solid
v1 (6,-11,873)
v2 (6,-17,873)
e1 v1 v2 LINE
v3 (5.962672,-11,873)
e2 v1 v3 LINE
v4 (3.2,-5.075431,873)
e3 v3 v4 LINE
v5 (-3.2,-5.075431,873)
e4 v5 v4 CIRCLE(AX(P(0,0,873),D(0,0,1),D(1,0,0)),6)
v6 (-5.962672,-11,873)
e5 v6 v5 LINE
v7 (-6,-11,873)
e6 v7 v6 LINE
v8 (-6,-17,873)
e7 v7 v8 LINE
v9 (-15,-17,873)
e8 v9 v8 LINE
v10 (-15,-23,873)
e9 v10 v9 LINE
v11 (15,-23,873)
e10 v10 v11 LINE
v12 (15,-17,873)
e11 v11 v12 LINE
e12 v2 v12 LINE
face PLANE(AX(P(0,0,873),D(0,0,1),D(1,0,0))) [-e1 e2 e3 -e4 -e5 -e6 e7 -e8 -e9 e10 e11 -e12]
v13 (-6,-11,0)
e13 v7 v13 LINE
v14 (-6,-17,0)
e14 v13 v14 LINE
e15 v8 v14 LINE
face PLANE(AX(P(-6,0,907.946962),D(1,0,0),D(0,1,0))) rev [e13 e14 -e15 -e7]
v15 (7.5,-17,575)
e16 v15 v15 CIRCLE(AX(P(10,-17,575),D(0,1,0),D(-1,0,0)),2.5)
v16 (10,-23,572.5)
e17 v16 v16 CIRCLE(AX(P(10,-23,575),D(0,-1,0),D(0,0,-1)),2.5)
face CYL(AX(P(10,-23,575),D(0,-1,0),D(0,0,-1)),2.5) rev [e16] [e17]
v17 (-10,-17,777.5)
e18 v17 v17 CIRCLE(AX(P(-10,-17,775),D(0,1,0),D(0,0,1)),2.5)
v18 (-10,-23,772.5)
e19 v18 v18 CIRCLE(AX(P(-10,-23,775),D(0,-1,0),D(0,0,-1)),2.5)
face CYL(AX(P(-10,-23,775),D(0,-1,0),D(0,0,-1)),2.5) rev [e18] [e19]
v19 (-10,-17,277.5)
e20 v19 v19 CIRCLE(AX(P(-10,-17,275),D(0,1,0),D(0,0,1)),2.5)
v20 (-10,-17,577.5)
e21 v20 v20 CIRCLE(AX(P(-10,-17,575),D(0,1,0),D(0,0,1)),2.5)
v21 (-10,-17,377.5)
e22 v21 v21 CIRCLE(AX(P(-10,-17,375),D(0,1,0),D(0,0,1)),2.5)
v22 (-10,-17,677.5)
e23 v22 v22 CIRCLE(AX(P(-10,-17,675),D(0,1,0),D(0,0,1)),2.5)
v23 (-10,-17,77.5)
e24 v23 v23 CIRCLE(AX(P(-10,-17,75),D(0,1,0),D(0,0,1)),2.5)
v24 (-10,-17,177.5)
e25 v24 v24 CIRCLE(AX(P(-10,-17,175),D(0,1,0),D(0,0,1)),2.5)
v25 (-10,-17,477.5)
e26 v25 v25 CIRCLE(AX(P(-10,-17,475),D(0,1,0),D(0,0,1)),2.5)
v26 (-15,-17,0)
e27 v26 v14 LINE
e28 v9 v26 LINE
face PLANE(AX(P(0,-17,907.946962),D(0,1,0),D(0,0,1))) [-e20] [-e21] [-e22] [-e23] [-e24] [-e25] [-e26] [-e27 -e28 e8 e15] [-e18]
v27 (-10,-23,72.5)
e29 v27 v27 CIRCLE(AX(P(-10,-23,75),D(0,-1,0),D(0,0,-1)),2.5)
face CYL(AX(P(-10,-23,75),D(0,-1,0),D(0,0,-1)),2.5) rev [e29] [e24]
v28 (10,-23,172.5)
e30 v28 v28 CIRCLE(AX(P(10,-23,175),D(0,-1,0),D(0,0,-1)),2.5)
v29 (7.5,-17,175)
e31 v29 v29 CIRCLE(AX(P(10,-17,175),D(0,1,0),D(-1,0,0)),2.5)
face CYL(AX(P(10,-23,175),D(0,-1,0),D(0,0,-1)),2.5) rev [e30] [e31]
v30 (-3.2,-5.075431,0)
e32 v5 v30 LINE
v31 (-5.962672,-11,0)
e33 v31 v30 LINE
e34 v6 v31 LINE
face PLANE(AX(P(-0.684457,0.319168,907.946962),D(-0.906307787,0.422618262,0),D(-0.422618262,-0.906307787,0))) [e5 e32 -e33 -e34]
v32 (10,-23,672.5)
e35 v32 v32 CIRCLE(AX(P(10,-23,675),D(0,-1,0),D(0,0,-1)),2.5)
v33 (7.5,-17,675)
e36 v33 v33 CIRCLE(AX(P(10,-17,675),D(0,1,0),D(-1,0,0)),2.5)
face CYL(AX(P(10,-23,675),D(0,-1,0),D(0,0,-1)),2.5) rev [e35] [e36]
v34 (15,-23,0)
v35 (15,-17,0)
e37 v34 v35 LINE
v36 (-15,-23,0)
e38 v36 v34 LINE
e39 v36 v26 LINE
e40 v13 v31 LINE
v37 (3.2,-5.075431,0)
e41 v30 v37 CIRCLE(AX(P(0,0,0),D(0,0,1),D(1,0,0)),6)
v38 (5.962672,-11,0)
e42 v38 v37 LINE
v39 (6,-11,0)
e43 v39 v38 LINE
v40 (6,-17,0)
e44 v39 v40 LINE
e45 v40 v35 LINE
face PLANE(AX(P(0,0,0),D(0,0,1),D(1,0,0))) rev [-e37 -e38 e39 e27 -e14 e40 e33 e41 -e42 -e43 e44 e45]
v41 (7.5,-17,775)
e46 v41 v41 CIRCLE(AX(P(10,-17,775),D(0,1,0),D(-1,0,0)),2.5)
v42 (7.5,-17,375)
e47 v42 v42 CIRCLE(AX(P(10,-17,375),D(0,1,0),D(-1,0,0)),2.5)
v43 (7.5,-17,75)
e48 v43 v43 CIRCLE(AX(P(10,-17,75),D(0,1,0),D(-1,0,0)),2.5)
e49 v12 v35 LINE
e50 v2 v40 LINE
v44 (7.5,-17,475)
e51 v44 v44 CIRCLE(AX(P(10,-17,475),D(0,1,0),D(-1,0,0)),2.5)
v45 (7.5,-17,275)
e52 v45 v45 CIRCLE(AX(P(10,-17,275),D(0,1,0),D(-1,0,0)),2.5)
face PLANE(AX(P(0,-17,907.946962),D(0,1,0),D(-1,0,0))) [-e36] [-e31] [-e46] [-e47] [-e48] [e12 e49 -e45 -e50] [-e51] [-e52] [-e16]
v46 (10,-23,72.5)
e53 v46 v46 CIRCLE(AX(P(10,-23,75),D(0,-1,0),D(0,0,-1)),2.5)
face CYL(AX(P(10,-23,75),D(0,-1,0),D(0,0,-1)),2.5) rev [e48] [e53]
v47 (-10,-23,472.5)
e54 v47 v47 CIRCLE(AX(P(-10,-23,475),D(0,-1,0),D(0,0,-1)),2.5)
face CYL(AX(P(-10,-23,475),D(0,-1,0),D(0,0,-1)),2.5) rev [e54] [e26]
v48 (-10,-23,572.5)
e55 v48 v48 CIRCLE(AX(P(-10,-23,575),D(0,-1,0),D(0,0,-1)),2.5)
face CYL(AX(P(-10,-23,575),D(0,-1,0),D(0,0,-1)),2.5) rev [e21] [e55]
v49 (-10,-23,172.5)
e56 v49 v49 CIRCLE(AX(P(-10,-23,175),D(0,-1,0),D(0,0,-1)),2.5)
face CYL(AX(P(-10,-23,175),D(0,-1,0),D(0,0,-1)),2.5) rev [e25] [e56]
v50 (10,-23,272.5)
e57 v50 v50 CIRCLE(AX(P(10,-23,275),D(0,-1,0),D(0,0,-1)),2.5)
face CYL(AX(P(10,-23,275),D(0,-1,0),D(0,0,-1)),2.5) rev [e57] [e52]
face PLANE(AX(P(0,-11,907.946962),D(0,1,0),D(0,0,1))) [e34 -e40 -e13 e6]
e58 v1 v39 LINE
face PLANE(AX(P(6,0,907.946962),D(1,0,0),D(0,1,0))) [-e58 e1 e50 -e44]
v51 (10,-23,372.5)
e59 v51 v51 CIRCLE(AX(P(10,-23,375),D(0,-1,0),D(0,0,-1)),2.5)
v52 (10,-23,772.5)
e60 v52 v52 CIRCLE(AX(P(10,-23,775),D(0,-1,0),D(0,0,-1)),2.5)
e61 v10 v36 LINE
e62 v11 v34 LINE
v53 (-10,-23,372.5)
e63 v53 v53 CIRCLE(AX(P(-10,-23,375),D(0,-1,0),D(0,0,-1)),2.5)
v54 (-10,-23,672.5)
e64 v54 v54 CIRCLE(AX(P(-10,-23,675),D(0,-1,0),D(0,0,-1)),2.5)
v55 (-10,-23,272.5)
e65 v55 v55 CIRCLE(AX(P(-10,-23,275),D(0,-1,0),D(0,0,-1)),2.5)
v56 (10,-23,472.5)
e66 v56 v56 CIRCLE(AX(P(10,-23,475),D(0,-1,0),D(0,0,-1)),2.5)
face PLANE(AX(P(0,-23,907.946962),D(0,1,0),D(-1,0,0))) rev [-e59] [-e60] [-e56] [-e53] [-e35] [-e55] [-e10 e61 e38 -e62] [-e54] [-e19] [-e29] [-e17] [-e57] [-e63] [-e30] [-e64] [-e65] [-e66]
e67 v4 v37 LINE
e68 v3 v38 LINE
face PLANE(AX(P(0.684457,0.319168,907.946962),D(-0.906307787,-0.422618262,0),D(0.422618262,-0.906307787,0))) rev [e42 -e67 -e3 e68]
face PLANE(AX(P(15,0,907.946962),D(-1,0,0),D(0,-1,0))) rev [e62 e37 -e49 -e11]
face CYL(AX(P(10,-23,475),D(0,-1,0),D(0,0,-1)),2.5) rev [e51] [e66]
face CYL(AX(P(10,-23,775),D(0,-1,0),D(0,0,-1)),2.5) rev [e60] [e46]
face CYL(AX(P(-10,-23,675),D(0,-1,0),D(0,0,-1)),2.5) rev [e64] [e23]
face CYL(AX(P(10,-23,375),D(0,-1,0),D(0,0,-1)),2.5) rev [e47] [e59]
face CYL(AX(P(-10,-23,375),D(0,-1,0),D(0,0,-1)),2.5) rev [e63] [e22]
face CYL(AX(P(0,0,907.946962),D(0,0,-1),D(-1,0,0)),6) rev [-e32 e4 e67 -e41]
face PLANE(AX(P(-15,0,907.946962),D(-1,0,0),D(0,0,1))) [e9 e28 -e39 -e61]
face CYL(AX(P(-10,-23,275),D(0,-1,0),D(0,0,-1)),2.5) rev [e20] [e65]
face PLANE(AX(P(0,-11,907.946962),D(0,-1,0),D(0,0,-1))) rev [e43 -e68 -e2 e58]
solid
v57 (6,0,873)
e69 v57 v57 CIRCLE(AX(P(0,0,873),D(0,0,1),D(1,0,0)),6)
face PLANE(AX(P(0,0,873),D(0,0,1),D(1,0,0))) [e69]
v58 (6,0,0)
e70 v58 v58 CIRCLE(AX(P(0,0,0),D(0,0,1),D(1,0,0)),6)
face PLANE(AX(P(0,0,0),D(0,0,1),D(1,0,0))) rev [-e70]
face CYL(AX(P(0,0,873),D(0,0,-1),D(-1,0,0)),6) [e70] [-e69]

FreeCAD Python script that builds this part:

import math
import FreeCAD as App
import Part
import Sketcher
from FreeCAD import Vector
Q = App.Units.Quantity

doc = App.newDocument("Part")
body = doc.addObject("PartDesign::Body", "Body")

sketch1 = doc.addObject("Sketcher::SketchObject", "Sketch")
body.addObject(sketch1)
sketch1.AttachmentSupport = (doc.XY_Plane, [""])
sketch1.MapMode = "FlatFace"
sketch1.addGeometry(Part.Circle(Vector(0, 0, 0), Vector(0, 0, 1), 6), False)
sketch1.addConstraint([
    Sketcher.Constraint("Coincident", 0, 3, -1, 1),
    Sketcher.Constraint("Diameter", 0, 12.0),
])
pad1 = doc.addObject("PartDesign::Pad", "Pad")
body.addObject(pad1)
pad1.Profile = sketch1
pad1.Length = 873
body2 = doc.addObject("PartDesign::Body", "Body001")

sketch2 = doc.addObject("Sketcher::SketchObject", "Sketch001")
body2.addObject(sketch2)
sketch2.AttachmentSupport = (doc.getObject("XY_Plane001"), [""])
sketch2.MapMode = "FlatFace"
sketch2.addGeometry([
    Part.LineSegment(Vector(-15, -17, 0), Vector(-15, -23, 0)),
    Part.LineSegment(Vector(-15, -23, 0), Vector(15, -23, 0)),
    Part.LineSegment(Vector(15, -23, 0), Vector(15, -17, 0)),
    Part.LineSegment(Vector(15, -17, 0), Vector(6, -17, 0)),
    Part.LineSegment(Vector(6, -17, 0), Vector(6, -11, 0)),
    Part.LineSegment(Vector(6, -11, 0), Vector(5.963, -11, 0)),
    Part.LineSegment(Vector(5.963, -11, 0), Vector(3.2, -5.075, 0)),
    Part.ArcOfCircle(Part.Circle(Vector(0, 0, 0), Vector(0, 0, 1), 6), math.radians(-122), math.radians(-58)),
    Part.LineSegment(Vector(-3.2, -5.075, 0), Vector(-5.963, -11, 0)),
    Part.LineSegment(Vector(-5.963, -11, 0), Vector(-6, -11, 0)),
    Part.LineSegment(Vector(-6, -11, 0), Vector(-6, -17, 0)),
    Part.LineSegment(Vector(-6, -17, 0), Vector(-15, -17, 0)),
], False)
sketch2.addConstraint([
    Sketcher.Constraint("Coincident", 0, 2, 1, 1),
    Sketcher.Constraint("Coincident", 1, 2, 2, 1),
    Sketcher.Constraint("Coincident", 2, 2, 3, 1),
    Sketcher.Constraint("Coincident", 3, 2, 4, 1),
    Sketcher.Constraint("Coincident", 4, 2, 5, 1),
    Sketcher.Constraint("Coincident", 5, 2, 6, 1),
    Sketcher.Constraint("Coincident", 6, 2, 7, 2),
    Sketcher.Constraint("Coincident", 7, 1, 8, 1),
    Sketcher.Constraint("Coincident", 8, 2, 9, 1),
    Sketcher.Constraint("Coincident", 9, 2, 10, 1),
    Sketcher.Constraint("Coincident", 10, 2, 11, 1),
    Sketcher.Constraint("Coincident", 11, 2, 0, 1),
    Sketcher.Constraint("Vertical", 0),
    Sketcher.Constraint("Horizontal", 1),
    Sketcher.Constraint("Vertical", 2),
    Sketcher.Constraint("Horizontal", 3),
    Sketcher.Constraint("Vertical", 4),
    Sketcher.Constraint("Horizontal", 5),
    Sketcher.Constraint("Horizontal", 9),
    Sketcher.Constraint("Vertical", 10),
    Sketcher.Constraint("Horizontal", 11),
    Sketcher.Constraint("Coincident", 7, 3, -1, 1),
    Sketcher.Constraint("Symmetric", 5, 2, 8, 2, -2),
    Sketcher.Constraint("Symmetric", 3, 2, 10, 2, -2),
    Sketcher.Constraint("Horizontal", 6, 2, 7, 1),
    Sketcher.Constraint("Equal", 3, 11),
    Sketcher.Constraint("Equal", 2, 4),
    Sketcher.Constraint("Radius", 7, 6.0),
    Sketcher.Constraint("DistanceX", 1, 1, 1, 2, 30.0),
    Sketcher.Constraint("DistanceX", 3, 2, 3, 1, 9.0),
    Sketcher.Constraint("DistanceY", 0, 2, 0, 1, 6.0),
    Sketcher.Constraint("Angle", 6, Q("115 deg")),
    Sketcher.Constraint("DistanceY", 0, 2, -1, 1, 23.0),
    Sketcher.Constraint("DistanceX", -1, 1, 6, 2, 3.2),
])
pad2 = doc.addObject("PartDesign::Pad", "Pad001")
body2.addObject(pad2)
pad2.Profile = sketch2
pad2.Length = 873

sketch3 = doc.addObject("Sketcher::SketchObject", "Sketch002")
body2.addObject(sketch3)
sketch3.AttachmentSupport = (doc.getObject("YZ_Plane001"), [""])
sketch3.MapMode = "FlatFace"
sketch3.AttachmentOffset = App.Placement(Vector(0, 0, 10), App.Rotation())
sketch3.addGeometry([
    Part.LineSegment(Vector(-17, 75, 0), Vector(-23, 75, 0)),
    Part.LineSegment(Vector(-23, 75, 0), Vector(-23, 72.5, 0)),
    Part.LineSegment(Vector(-23, 72.5, 0), Vector(-17, 72.5, 0)),
    Part.LineSegment(Vector(-17, 72.5, 0), Vector(-17, 75, 0)),
], False)
sketch3.addGeometry(Part.LineSegment(Vector(-23, 75, 0), Vector(-17, 75, 0)), True)
sketch3.addConstraint([
    Sketcher.Constraint("Coincident", 0, 2, 1, 1),
    Sketcher.Constraint("Coincident", 1, 2, 2, 1),
    Sketcher.Constraint("Coincident", 2, 2, 3, 1),
    Sketcher.Constraint("Coincident", 3, 2, 0, 1),
    Sketcher.Constraint("Horizontal", 0),
    Sketcher.Constraint("Vertical", 1),
    Sketcher.Constraint("Horizontal", 2),
    Sketcher.Constraint("Vertical", 3),
    Sketcher.Constraint("Horizontal", 4),
    Sketcher.Constraint("Coincident", 4, 1, 0, 2),
    Sketcher.Constraint("Vertical", 2, 2, 4, 2),
    Sketcher.Constraint("DistanceY", 1, 2, 1, 1, 2.5),
    Sketcher.Constraint("DistanceX", 0, 2, -1, 1, 23.0),
    Sketcher.Constraint("DistanceY", -1, 1, 0, 2, 75.0),
    Sketcher.Constraint("DistanceX", 0, 2, 0, 1, 6.001),
])
groove = doc.addObject("PartDesign::Groove", "Groove")
body2.addObject(groove)
groove.Profile = sketch3
groove.ReferenceAxis = (sketch3, ["Axis0"])
groove.Angle = 360
doc.recompute()

linearpattern = doc.addObject("PartDesign::LinearPattern", "LinearPattern")
body2.addObject(linearpattern)
linearpattern.Originals = [groove]
linearpattern.Direction = (doc.getObject("X_Axis001"), [""])
linearpattern.Mode = "offset"
linearpattern.Offset = 20
linearpattern.Occurrences = 2
linearpattern.Reversed = True
body2.Tip = linearpattern
doc.recompute()

linearpattern2 = doc.addObject("PartDesign::LinearPattern", "LinearPattern001")
body2.addObject(linearpattern2)
linearpattern2.Originals = [groove]
linearpattern2.Direction = (doc.getObject("Z_Axis001"), [""])
linearpattern2.Mode = "offset"
linearpattern2.Offset = 100
linearpattern2.Occurrences = 8
body2.Tip = linearpattern2

sketch4 = doc.addObject("Sketcher::SketchObject", "Sketch003")
body2.addObject(sketch4)
sketch4.AttachmentSupport = (doc.getObject("YZ_Plane001"), [""])
sketch4.MapMode = "FlatFace"
sketch4.AttachmentOffset = App.Placement(Vector(0, 0, -10), App.Rotation())
sketch4.addGeometry([
    Part.LineSegment(Vector(-17, 175, 0), Vector(-23, 175, 0)),
    Part.LineSegment(Vector(-23, 175, 0), Vector(-23, 172.5, 0)),
    Part.LineSegment(Vector(-23, 172.5, 0), Vector(-17, 172.5, 0)),
    Part.LineSegment(Vector(-17, 172.5, 0), Vector(-17, 175, 0)),
], False)
sketch4.addGeometry(Part.LineSegment(Vector(-23, 175, 0), Vector(-17, 175, 0)), True)
sketch4.addConstraint([
    Sketcher.Constraint("Coincident", 0, 2, 1, 1),
    Sketcher.Constraint("Coincident", 1, 2, 2, 1),
    Sketcher.Constraint("Coincident", 2, 2, 3, 1),
    Sketcher.Constraint("Coincident", 3, 2, 0, 1),
    Sketcher.Constraint("Horizontal", 0),
    Sketcher.Constraint("Vertical", 1),
    Sketcher.Constraint("Horizontal", 2),
    Sketcher.Constraint("Vertical", 3),
    Sketcher.Constraint("Horizontal", 4),
    Sketcher.Constraint("Coincident", 4, 1, 0, 2),
    Sketcher.Constraint("Vertical", 2, 2, 4, 2),
    Sketcher.Constraint("DistanceY", 1, 2, 1, 1, 2.5),
    Sketcher.Constraint("DistanceX", 0, 2, -1, 1, 23.0),
    Sketcher.Constraint("DistanceY", -1, 1, 0, 2, 175.0),
    Sketcher.Constraint("DistanceX", 0, 2, 0, 1, 6.001),
])
groove2 = doc.addObject("PartDesign::Groove", "Groove001")
body2.addObject(groove2)
groove2.Profile = sketch4
groove2.ReferenceAxis = (sketch4, ["Axis0"])
groove2.Angle = 360

sketch5 = doc.addObject("Sketcher::SketchObject", "Sketch004")
body2.addObject(sketch5)
sketch5.AttachmentSupport = (doc.getObject("YZ_Plane001"), [""])
sketch5.MapMode = "FlatFace"
sketch5.AttachmentOffset = App.Placement(Vector(0, 0, -10), App.Rotation())
sketch5.addGeometry([
    Part.LineSegment(Vector(-17, 275, 0), Vector(-23, 275, 0)),
    Part.LineSegment(Vector(-23, 275, 0), Vector(-23, 272.5, 0)),
    Part.LineSegment(Vector(-23, 272.5, 0), Vector(-17, 272.5, 0)),
    Part.LineSegment(Vector(-17, 272.5, 0), Vector(-17, 275, 0)),
], False)
sketch5.addGeometry(Part.LineSegment(Vector(-23, 275, 0), Vector(-17, 275, 0)), True)
sketch5.addConstraint([
    Sketcher.Constraint("Coincident", 0, 2, 1, 1),
    Sketcher.Constraint("Coincident", 1, 2, 2, 1),
    Sketcher.Constraint("Coincident", 2, 2, 3, 1),
    Sketcher.Constraint("Coincident", 3, 2, 0, 1),
    Sketcher.Constraint("Horizontal", 0),
    Sketcher.Constraint("Vertical", 1),
    Sketcher.Constraint("Horizontal", 2),
    Sketcher.Constraint("Vertical", 3),
    Sketcher.Constraint("Horizontal", 4),
    Sketcher.Constraint("Coincident", 4, 1, 0, 2),
    Sketcher.Constraint("Vertical", 2, 2, 4, 2),
    Sketcher.Constraint("DistanceY", 1, 2, 1, 1, 2.5),
    Sketcher.Constraint("DistanceX", 0, 2, -1, 1, 23.0),
    Sketcher.Constraint("DistanceY", -1, 1, 0, 2, 275.0),
    Sketcher.Constraint("DistanceX", 0, 2, 0, 1, 6.001),
])
groove3 = doc.addObject("PartDesign::Groove", "Groove002")
body2.addObject(groove3)
groove3.Profile = sketch5
groove3.ReferenceAxis = (sketch5, ["Axis0"])
groove3.Angle = 360

sketch6 = doc.addObject("Sketcher::SketchObject", "Sketch005")
body2.addObject(sketch6)
sketch6.AttachmentSupport = (doc.getObject("YZ_Plane001"), [""])
sketch6.MapMode = "FlatFace"
sketch6.AttachmentOffset = App.Placement(Vector(0, 0, -10), App.Rotation())
sketch6.addGeometry([
    Part.LineSegment(Vector(-17, 375, 0), Vector(-23, 375, 0)),
    Part.LineSegment(Vector(-23, 375, 0), Vector(-23, 372.5, 0)),
    Part.LineSegment(Vector(-23, 372.5, 0), Vector(-17, 372.5, 0)),
    Part.LineSegment(Vector(-17, 372.5, 0), Vector(-17, 375, 0)),
], False)
sketch6.addGeometry(Part.LineSegment(Vector(-23, 375, 0), Vector(-17, 375, 0)), True)
sketch6.addConstraint([
    Sketcher.Constraint("Coincident", 0, 2, 1, 1),
    Sketcher.Constraint("Coincident", 1, 2, 2, 1),
    Sketcher.Constraint("Coincident", 2, 2, 3, 1),
    Sketcher.Constraint("Coincident", 3, 2, 0, 1),
    Sketcher.Constraint("Horizontal", 0),
    Sketcher.Constraint("Vertical", 1),
    Sketcher.Constraint("Horizontal", 2),
    Sketcher.Constraint("Vertical", 3),
    Sketcher.Constraint("Horizontal", 4),
    Sketcher.Constraint("Coincident", 4, 1, 0, 2),
    Sketcher.Constraint("Vertical", 2, 2, 4, 2),
    Sketcher.Constraint("DistanceY", 1, 2, 1, 1, 2.5),
    Sketcher.Constraint("DistanceX", 0, 2, -1, 1, 23.0),
    Sketcher.Constraint("DistanceY", -1, 1, 0, 2, 375.0),
    Sketcher.Constraint("DistanceX", 0, 2, 0, 1, 6.001),
])
groove4 = doc.addObject("PartDesign::Groove", "Groove003")
body2.addObject(groove4)
groove4.Profile = sketch6
groove4.ReferenceAxis = (sketch6, ["Axis0"])
groove4.Angle = 360

sketch7 = doc.addObject("Sketcher::SketchObject", "Sketch006")
body2.addObject(sketch7)
sketch7.AttachmentSupport = (doc.getObject("YZ_Plane001"), [""])
sketch7.MapMode = "FlatFace"
sketch7.AttachmentOffset = App.Placement(Vector(0, 0, -10), App.Rotation())
sketch7.addGeometry([
    Part.LineSegment(Vector(-17, 475, 0), Vector(-23, 475, 0)),
    Part.LineSegment(Vector(-23, 475, 0), Vector(-23, 472.5, 0)),
    Part.LineSegment(Vector(-23, 472.5, 0), Vector(-17, 472.5, 0)),
    Part.LineSegment(Vector(-17, 472.5, 0), Vector(-17, 475, 0)),
], False)
sketch7.addGeometry(Part.LineSegment(Vector(-23, 475, 0), Vector(-17, 475, 0)), True)
sketch7.addConstraint([
    Sketcher.Constraint("Coincident", 0, 2, 1, 1),
    Sketcher.Constraint("Coincident", 1, 2, 2, 1),
    Sketcher.Constraint("Coincident", 2, 2, 3, 1),
    Sketcher.Constraint("Coincident", 3, 2, 0, 1),
    Sketcher.Constraint("Horizontal", 0),
    Sketcher.Constraint("Vertical", 1),
    Sketcher.Constraint("Horizontal", 2),
    Sketcher.Constraint("Vertical", 3),
    Sketcher.Constraint("Horizontal", 4),
    Sketcher.Constraint("Coincident", 4, 1, 0, 2),
    Sketcher.Constraint("Vertical", 2, 2, 4, 2),
    Sketcher.Constraint("DistanceY", 1, 2, 1, 1, 2.5),
    Sketcher.Constraint("DistanceX", 0, 2, -1, 1, 23.0),
    Sketcher.Constraint("DistanceY", -1, 1, 0, 2, 475.0),
    Sketcher.Constraint("DistanceX", 0, 2, 0, 1, 6.001),
])
groove5 = doc.addObject("PartDesign::Groove", "Groove004")
body2.addObject(groove5)
groove5.Profile = sketch7
groove5.ReferenceAxis = (sketch7, ["Axis0"])
groove5.Angle = 360

sketch8 = doc.addObject("Sketcher::SketchObject", "Sketch007")
body2.addObject(sketch8)
sketch8.AttachmentSupport = (doc.getObject("YZ_Plane001"), [""])
sketch8.MapMode = "FlatFace"
sketch8.AttachmentOffset = App.Placement(Vector(0, 0, -10), App.Rotation())
sketch8.addGeometry([
    Part.LineSegment(Vector(-17, 575, 0), Vector(-23, 575, 0)),
    Part.LineSegment(Vector(-23, 575, 0), Vector(-23, 572.5, 0)),
    Part.LineSegment(Vector(-23, 572.5, 0), Vector(-17, 572.5, 0)),
    Part.LineSegment(Vector(-17, 572.5, 0), Vector(-17, 575, 0)),
], False)
sketch8.addGeometry(Part.LineSegment(Vector(-23, 575, 0), Vector(-17, 575, 0)), True)
sketch8.addConstraint([
    Sketcher.Constraint("Coincident", 0, 2, 1, 1),
    Sketcher.Constraint("Coincident", 1, 2, 2, 1),
    Sketcher.Constraint("Coincident", 2, 2, 3, 1),
    Sketcher.Constraint("Coincident", 3, 2, 0, 1),
    Sketcher.Constraint("Horizontal", 0),
    Sketcher.Constraint("Vertical", 1),
    Sketcher.Constraint("Horizontal", 2),
    Sketcher.Constraint("Vertical", 3),
    Sketcher.Constraint("Horizontal", 4),
    Sketcher.Constraint("Coincident", 4, 1, 0, 2),
    Sketcher.Constraint("Vertical", 2, 2, 4, 2),
    Sketcher.Constraint("DistanceY", 1, 2, 1, 1, 2.5),
    Sketcher.Constraint("DistanceX", 0, 2, -1, 1, 23.0),
    Sketcher.Constraint("DistanceY", -1, 1, 0, 2, 575.0),
    Sketcher.Constraint("DistanceX", 0, 2, 0, 1, 6.001),
])
groove6 = doc.addObject("PartDesign::Groove", "Groove005")
body2.addObject(groove6)
groove6.Profile = sketch8
groove6.ReferenceAxis = (sketch8, ["Axis0"])
groove6.Angle = 360

sketch9 = doc.addObject("Sketcher::SketchObject", "Sketch008")
body2.addObject(sketch9)
sketch9.AttachmentSupport = (doc.getObject("YZ_Plane001"), [""])
sketch9.MapMode = "FlatFace"
sketch9.AttachmentOffset = App.Placement(Vector(0, 0, -10), App.Rotation())
sketch9.addGeometry([
    Part.LineSegment(Vector(-17, 675, 0), Vector(-23, 675, 0)),
    Part.LineSegment(Vector(-23, 675, 0), Vector(-23, 672.5, 0)),
    Part.LineSegment(Vector(-23, 672.5, 0), Vector(-17, 672.5, 0)),
    Part.LineSegment(Vector(-17, 672.5, 0), Vector(-17, 675, 0)),
], False)
sketch9.addGeometry(Part.LineSegment(Vector(-23, 675, 0), Vector(-17, 675, 0)), True)
sketch9.addConstraint([
    Sketcher.Constraint("Coincident", 0, 2, 1, 1),
    Sketcher.Constraint("Coincident", 1, 2, 2, 1),
    Sketcher.Constraint("Coincident", 2, 2, 3, 1),
    Sketcher.Constraint("Coincident", 3, 2, 0, 1),
    Sketcher.Constraint("Horizontal", 0),
    Sketcher.Constraint("Vertical", 1),
    Sketcher.Constraint("Horizontal", 2),
    Sketcher.Constraint("Vertical", 3),
    Sketcher.Constraint("Horizontal", 4),
    Sketcher.Constraint("Coincident", 4, 1, 0, 2),
    Sketcher.Constraint("Vertical", 2, 2, 4, 2),
    Sketcher.Constraint("DistanceY", 1, 2, 1, 1, 2.5),
    Sketcher.Constraint("DistanceX", 0, 2, -1, 1, 23.0),
    Sketcher.Constraint("DistanceY", -1, 1, 0, 2, 675.0),
    Sketcher.Constraint("DistanceX", 0, 2, 0, 1, 6.001),
])
groove7 = doc.addObject("PartDesign::Groove", "Groove006")
body2.addObject(groove7)
groove7.Profile = sketch9
groove7.ReferenceAxis = (sketch9, ["Axis0"])
groove7.Angle = 360

sketch10 = doc.addObject("Sketcher::SketchObject", "Sketch009")
body2.addObject(sketch10)
sketch10.AttachmentSupport = (doc.getObject("YZ_Plane001"), [""])
sketch10.MapMode = "FlatFace"
sketch10.AttachmentOffset = App.Placement(Vector(0, 0, -10), App.Rotation())
sketch10.addGeometry([
    Part.LineSegment(Vector(-17, 775, 0), Vector(-23, 775, 0)),
    Part.LineSegment(Vector(-23, 775, 0), Vector(-23, 772.5, 0)),
    Part.LineSegment(Vector(-23, 772.5, 0), Vector(-17, 772.5, 0)),
    Part.LineSegment(Vector(-17, 772.5, 0), Vector(-17, 775, 0)),
], False)
sketch10.addGeometry(Part.LineSegment(Vector(-23, 775, 0), Vector(-17, 775, 0)), True)
sketch10.addConstraint([
    Sketcher.Constraint("Coincident", 0, 2, 1, 1),
    Sketcher.Constraint("Coincident", 1, 2, 2, 1),
    Sketcher.Constraint("Coincident", 2, 2, 3, 1),
    Sketcher.Constraint("Coincident", 3, 2, 0, 1),
    Sketcher.Constraint("Horizontal", 0),
    Sketcher.Constraint("Vertical", 1),
    Sketcher.Constraint("Horizontal", 2),
    Sketcher.Constraint("Vertical", 3),
    Sketcher.Constraint("Horizontal", 4),
    Sketcher.Constraint("Coincident", 4, 1, 0, 2),
    Sketcher.Constraint("Vertical", 2, 2, 4, 2),
    Sketcher.Constraint("DistanceY", 1, 2, 1, 1, 2.5),
    Sketcher.Constraint("DistanceX", 0, 2, -1, 1, 23.0),
    Sketcher.Constraint("DistanceY", -1, 1, 0, 2, 775.0),
    Sketcher.Constraint("DistanceX", 0, 2, 0, 1, 6.001),
])
groove8 = doc.addObject("PartDesign::Groove", "Groove007")
body2.addObject(groove8)
groove8.Profile = sketch10
groove8.ReferenceAxis = (sketch10, ["Axis0"])
groove8.Angle = 360

doc.recompute()
